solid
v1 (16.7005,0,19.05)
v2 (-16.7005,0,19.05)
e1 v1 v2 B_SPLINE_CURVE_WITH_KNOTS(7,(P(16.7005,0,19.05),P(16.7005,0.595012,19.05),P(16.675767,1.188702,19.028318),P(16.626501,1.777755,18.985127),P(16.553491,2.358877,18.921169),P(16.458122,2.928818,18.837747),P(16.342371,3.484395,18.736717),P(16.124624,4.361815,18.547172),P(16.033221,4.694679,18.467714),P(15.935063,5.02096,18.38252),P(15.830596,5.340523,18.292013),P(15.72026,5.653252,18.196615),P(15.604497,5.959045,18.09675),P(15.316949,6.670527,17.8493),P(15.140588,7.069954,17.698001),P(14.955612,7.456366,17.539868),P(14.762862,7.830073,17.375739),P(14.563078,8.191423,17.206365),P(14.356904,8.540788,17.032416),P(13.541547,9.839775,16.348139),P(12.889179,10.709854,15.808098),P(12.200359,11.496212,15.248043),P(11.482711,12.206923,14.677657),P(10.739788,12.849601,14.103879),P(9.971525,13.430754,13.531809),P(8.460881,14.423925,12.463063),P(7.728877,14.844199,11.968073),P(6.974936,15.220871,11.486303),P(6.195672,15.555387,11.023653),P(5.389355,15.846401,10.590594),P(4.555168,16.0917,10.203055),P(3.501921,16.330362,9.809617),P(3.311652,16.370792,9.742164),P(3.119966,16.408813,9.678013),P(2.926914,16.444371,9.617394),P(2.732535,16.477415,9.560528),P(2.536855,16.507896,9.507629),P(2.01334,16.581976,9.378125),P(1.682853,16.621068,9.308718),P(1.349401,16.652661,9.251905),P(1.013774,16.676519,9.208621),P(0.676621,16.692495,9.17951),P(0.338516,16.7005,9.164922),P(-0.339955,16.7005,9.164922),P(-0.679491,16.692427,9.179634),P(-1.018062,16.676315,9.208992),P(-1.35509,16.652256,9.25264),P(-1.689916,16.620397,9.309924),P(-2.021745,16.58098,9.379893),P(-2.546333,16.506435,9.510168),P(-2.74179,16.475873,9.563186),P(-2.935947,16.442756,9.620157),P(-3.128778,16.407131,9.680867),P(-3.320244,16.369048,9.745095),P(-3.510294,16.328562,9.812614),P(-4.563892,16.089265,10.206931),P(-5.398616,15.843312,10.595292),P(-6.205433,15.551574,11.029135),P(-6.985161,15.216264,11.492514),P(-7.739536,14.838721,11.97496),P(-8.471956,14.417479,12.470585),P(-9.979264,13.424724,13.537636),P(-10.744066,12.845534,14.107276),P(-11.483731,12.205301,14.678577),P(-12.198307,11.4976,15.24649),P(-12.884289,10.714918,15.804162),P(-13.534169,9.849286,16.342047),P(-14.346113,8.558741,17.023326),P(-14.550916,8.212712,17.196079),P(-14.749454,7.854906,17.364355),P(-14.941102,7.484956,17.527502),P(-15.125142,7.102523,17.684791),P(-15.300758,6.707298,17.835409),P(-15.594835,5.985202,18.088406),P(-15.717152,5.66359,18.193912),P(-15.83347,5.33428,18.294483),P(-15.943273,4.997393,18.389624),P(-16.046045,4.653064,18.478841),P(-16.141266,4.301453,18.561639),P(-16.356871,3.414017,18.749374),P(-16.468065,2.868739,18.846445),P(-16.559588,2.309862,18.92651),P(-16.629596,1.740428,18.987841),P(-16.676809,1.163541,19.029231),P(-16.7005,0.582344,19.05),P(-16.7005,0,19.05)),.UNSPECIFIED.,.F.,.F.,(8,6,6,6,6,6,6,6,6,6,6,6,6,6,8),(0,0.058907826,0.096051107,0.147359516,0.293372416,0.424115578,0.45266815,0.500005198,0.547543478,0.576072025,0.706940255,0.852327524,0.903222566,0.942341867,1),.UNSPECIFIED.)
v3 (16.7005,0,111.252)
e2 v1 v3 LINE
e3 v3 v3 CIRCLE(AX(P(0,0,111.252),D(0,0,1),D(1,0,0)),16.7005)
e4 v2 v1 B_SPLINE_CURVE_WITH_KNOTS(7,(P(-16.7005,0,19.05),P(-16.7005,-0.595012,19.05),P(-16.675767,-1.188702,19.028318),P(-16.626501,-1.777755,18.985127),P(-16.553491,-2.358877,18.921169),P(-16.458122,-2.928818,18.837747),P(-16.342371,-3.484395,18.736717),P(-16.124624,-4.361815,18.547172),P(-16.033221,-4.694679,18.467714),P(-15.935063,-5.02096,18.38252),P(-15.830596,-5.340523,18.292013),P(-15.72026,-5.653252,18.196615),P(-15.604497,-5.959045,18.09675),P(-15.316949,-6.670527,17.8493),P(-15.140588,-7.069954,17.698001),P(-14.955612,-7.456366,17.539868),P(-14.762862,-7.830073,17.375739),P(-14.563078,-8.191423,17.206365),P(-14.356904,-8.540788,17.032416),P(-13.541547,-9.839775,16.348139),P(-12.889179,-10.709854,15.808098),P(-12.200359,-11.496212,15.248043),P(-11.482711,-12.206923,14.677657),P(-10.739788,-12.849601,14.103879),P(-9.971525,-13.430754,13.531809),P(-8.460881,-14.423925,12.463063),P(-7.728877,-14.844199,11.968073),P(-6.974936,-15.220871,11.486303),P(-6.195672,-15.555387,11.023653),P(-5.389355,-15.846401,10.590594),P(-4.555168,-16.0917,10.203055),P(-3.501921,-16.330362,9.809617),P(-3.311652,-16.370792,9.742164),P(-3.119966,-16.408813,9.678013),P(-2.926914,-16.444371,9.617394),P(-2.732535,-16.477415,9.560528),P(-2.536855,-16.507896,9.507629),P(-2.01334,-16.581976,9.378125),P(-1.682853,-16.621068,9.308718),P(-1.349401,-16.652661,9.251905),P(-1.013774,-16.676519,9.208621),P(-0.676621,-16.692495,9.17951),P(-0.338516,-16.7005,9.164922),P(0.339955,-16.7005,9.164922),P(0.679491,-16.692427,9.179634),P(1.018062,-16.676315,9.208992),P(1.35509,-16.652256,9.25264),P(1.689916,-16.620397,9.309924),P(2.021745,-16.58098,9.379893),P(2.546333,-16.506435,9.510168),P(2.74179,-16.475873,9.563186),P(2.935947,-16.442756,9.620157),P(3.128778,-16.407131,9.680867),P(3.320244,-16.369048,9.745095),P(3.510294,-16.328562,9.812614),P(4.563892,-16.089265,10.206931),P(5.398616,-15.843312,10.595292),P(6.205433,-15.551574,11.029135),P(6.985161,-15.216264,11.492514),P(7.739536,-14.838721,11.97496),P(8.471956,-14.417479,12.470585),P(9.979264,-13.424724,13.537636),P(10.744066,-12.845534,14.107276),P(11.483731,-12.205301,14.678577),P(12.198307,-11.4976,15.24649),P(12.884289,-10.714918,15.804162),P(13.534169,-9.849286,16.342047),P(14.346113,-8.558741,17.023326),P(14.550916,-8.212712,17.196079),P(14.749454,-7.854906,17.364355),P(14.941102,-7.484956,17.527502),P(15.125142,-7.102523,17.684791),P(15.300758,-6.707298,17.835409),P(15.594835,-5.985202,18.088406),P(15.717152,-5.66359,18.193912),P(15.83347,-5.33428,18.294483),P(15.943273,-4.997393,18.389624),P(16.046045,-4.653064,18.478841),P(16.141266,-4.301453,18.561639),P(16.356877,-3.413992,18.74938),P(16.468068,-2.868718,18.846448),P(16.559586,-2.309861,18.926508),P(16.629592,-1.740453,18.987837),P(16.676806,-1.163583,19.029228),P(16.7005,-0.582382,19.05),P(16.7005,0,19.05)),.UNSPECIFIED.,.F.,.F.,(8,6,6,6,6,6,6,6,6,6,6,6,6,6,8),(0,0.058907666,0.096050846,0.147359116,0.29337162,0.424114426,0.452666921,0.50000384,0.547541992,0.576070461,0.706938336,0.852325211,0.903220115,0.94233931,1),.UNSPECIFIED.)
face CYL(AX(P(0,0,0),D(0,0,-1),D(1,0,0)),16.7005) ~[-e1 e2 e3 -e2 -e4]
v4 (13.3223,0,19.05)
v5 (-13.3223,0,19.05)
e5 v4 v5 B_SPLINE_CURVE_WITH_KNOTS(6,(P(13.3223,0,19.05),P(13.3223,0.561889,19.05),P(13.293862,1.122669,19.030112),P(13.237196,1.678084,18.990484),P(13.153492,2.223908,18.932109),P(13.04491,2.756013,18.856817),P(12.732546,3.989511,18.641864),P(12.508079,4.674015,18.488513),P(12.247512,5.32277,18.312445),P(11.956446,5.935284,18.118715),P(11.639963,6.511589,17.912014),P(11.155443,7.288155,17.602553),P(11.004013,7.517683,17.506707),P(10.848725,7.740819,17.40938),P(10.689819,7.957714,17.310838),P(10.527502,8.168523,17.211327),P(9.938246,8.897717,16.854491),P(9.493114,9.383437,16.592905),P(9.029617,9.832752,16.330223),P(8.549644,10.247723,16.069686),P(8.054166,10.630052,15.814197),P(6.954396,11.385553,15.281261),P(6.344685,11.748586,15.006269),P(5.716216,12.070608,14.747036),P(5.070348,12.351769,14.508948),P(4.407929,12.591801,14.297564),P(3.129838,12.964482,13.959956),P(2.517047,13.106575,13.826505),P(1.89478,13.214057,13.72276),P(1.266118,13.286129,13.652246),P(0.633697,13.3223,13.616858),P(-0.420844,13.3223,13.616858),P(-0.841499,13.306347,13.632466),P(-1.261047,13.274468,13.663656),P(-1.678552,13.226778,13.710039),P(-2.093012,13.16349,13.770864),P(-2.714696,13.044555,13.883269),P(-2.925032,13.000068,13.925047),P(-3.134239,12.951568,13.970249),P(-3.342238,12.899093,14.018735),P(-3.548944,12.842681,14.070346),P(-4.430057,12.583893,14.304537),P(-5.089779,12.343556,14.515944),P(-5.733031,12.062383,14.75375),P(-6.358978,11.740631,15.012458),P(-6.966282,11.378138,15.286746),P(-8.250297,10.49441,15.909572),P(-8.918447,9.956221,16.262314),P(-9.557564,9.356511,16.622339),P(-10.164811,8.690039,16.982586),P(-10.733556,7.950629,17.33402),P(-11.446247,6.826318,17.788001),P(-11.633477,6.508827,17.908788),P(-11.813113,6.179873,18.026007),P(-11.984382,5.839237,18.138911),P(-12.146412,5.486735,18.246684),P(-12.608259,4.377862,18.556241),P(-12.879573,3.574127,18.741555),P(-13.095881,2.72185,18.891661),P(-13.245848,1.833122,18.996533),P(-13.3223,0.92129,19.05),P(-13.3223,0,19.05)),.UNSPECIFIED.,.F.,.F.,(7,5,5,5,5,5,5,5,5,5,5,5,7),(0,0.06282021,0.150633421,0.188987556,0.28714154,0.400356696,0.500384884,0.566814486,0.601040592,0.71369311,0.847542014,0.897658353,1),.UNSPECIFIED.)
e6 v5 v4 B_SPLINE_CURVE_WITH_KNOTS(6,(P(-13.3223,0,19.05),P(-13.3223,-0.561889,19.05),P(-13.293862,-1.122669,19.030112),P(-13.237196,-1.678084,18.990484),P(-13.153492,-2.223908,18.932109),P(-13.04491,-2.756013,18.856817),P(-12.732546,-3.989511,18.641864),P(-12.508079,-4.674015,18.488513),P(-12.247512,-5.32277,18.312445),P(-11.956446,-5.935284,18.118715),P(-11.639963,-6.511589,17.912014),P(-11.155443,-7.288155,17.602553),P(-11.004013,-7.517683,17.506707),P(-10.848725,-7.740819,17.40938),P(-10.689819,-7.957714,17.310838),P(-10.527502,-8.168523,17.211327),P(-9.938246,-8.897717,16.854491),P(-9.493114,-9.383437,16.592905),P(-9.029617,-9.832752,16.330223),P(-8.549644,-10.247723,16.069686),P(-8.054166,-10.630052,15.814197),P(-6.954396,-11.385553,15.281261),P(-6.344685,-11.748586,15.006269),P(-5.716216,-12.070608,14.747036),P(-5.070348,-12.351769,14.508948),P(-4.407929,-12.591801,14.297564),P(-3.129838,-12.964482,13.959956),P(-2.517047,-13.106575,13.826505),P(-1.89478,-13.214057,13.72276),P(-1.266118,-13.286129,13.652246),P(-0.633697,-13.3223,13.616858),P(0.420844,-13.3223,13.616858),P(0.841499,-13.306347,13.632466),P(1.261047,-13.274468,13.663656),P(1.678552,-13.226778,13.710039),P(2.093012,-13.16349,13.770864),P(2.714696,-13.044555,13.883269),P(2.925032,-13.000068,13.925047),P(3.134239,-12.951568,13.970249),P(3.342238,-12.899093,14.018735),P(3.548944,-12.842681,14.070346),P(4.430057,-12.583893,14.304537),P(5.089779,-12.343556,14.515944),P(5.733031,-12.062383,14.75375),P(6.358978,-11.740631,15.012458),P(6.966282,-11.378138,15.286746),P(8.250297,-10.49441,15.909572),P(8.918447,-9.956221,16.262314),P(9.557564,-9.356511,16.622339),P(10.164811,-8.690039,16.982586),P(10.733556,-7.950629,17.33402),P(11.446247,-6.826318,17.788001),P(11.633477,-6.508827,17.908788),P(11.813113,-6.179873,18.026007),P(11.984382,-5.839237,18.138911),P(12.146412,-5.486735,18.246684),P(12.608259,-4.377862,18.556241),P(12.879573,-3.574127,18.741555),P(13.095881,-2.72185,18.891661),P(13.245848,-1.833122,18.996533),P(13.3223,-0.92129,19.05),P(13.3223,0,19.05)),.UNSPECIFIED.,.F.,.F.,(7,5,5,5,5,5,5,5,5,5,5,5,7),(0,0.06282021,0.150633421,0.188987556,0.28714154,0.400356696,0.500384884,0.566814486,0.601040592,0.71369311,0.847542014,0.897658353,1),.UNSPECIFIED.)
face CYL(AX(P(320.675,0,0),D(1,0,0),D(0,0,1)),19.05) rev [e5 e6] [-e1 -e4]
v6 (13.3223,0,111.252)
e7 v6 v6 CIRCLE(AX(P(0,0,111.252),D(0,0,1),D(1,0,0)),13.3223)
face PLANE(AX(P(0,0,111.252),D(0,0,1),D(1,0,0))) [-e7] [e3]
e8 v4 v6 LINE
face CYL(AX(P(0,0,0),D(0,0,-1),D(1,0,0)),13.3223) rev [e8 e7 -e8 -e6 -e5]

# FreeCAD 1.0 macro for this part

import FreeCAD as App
import Part
import Sketcher

V = App.Vector
Q = App.Units.Quantity

doc = App.newDocument("Part")
body = doc.addObject("PartDesign::Body", "Body")

sketch1 = doc.addObject("Sketcher::SketchObject", "Sketch")
body.addObject(sketch1)
sketch1.AttachmentSupport = (doc.XY_Plane, [""])
sketch1.MapMode = "FlatFace"
sketch1.addGeometry([
    Part.Circle(V(0, 0, 0), V(0, 0, 1), 16.7005),
    Part.Circle(V(0, 0, 0), V(0, 0, 1), 13.3223),
], False)
sketch1.addConstraint([
    Sketcher.Constraint("Coincident", 0, 3, -1, 1),
    Sketcher.Constraint("Coincident", 1, 3, -1, 1),
    Sketcher.Constraint("Diameter", 0, Q("1.315 in")),
    Sketcher.Constraint("Diameter", 1, Q("1.049 in")),
])
pad1 = doc.addObject("PartDesign::Pad", "Pad")
body.addObject(pad1)
pad1.Profile = sketch1
pad1.Length = Q("4.38 in")

sketch2 = doc.addObject("Sketcher::SketchObject", "Sketch001")
body.addObject(sketch2)
sketch2.AttachmentSupport = (doc.YZ_Plane, [""])
sketch2.MapMode = "FlatFace"
sketch2.AttachmentOffset = App.Placement(V(0, 0, 12.625 * 25.4), App.Rotation())
sketch2.addGeometry(Part.Circle(V(0, 0, 0), V(0, 0, 1), 19.05), False)
sketch2.addConstraint([
    Sketcher.Constraint("Coincident", 0, 3, -1, 1),
    Sketcher.Constraint("Diameter", 0, Q("1.5 in")),
])
pocket1 = doc.addObject("PartDesign::Pocket", "Pocket")
body.addObject(pocket1)
pocket1.Profile = sketch2
pocket1.Length = Q("25.25 in")

doc.recompute()
